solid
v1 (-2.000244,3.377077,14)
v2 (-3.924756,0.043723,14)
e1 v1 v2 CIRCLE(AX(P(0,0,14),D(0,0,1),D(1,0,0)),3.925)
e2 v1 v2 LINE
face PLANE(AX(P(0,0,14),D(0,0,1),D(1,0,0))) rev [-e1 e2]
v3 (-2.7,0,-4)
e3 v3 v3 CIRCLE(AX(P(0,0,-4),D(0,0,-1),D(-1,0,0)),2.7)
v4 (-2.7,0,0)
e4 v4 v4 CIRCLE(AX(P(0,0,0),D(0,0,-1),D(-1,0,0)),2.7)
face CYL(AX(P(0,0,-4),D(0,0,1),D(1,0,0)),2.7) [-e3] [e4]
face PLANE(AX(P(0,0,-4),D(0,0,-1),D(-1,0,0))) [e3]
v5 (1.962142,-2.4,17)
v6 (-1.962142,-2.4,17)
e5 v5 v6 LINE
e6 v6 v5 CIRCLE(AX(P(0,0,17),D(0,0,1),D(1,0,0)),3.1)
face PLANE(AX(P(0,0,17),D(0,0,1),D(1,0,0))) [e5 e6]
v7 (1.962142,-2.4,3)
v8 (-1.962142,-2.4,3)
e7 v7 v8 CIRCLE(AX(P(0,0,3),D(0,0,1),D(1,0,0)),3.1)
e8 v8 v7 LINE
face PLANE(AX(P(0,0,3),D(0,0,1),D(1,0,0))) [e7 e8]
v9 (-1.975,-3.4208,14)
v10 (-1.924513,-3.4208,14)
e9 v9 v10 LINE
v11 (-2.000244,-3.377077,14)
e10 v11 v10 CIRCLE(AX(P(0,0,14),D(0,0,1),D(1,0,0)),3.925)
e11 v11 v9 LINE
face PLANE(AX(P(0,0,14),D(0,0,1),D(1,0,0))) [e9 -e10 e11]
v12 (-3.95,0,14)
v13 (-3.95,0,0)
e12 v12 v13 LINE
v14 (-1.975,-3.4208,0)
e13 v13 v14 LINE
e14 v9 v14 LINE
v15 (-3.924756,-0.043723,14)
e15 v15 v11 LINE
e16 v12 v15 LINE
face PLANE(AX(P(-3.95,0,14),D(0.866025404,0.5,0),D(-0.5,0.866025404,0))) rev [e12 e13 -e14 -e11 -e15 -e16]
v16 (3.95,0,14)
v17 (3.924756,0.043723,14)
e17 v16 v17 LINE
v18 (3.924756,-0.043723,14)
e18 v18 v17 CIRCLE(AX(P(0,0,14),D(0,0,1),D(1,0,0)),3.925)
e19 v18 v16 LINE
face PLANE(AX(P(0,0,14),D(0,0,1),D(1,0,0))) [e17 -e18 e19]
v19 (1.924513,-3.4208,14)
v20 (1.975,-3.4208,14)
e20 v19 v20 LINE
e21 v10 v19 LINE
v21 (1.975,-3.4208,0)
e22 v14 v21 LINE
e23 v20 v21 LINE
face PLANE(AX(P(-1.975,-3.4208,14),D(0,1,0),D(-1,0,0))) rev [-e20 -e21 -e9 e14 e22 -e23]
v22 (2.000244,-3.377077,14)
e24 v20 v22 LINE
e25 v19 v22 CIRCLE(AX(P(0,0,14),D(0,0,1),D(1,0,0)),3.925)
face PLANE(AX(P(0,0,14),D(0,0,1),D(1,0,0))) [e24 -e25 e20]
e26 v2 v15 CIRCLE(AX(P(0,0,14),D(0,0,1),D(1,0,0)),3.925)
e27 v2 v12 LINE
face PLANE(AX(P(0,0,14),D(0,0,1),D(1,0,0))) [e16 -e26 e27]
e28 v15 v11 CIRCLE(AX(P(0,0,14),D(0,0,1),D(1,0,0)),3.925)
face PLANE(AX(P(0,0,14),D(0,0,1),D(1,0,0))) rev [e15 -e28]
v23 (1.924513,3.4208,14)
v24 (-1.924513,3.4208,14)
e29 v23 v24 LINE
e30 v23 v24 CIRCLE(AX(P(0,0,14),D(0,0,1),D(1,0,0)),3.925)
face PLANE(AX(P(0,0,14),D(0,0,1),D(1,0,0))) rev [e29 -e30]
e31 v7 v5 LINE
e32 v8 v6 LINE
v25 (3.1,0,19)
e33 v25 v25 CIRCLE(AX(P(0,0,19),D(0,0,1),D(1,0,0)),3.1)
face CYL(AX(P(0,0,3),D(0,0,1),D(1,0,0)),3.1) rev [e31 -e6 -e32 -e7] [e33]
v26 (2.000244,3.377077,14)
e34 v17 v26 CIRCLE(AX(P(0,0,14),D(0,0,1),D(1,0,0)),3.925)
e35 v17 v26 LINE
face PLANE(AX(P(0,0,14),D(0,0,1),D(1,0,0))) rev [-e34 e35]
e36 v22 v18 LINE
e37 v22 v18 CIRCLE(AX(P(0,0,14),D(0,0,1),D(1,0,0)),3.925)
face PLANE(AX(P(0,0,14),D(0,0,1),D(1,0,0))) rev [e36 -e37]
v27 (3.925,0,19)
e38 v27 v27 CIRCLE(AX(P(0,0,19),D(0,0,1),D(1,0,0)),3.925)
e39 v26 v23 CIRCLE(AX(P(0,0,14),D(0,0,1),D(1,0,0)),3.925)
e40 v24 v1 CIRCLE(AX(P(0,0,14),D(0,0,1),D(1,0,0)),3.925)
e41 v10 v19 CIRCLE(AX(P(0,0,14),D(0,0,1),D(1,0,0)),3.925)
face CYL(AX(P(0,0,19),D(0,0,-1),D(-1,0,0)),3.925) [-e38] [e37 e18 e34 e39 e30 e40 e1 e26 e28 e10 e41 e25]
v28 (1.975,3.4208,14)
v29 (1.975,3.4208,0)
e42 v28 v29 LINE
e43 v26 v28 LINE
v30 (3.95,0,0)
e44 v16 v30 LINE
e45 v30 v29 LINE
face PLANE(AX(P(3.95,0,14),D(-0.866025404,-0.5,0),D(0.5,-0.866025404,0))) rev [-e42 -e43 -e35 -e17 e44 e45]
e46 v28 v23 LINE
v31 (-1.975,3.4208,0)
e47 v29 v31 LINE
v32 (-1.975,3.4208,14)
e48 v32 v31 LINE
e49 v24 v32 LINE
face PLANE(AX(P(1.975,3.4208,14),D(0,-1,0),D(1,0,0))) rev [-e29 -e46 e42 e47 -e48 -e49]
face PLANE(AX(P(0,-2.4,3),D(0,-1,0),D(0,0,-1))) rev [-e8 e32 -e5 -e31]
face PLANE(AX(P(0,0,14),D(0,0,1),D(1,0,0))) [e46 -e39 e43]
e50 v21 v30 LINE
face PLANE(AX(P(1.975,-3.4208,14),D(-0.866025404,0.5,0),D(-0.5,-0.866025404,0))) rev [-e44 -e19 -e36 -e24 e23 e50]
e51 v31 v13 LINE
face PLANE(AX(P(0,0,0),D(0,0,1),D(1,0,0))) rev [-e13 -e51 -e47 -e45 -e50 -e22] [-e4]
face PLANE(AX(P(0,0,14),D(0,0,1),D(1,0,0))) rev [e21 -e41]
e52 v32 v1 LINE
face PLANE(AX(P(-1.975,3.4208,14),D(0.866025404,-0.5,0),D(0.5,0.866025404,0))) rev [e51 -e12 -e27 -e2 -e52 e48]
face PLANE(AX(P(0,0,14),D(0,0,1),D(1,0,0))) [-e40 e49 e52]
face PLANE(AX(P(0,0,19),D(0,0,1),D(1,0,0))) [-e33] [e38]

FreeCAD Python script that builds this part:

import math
import FreeCAD as App
import Part
import Sketcher
Q = App.Units.Quantity


def add_polygon(sketch, points):
    """Adds a closed chain of lines whose ends are joined by coincident constraints."""
    first, n = sketch.GeometryCount, len(points)
    for a, b in zip(points, points[1:] + points[:1]):
        sketch.addGeometry(Part.LineSegment(App.Vector(*a, 0), App.Vector(*b, 0)), False)
    for i in range(n):
        sketch.addConstraint(Sketcher.Constraint("Coincident", first + i, 2, first + (i + 1) % n, 1))

doc = App.newDocument("Part")
params = doc.addObject("Spreadsheet::Sheet", "Params")
for row, (alias, value) in enumerate([
    ("sketch1_width", "3.95 mm"),
    ("pad1_length", "14 mm"),
    ("sketch2_diameter", "7.85 mm"),
    ("pad2_length", "5 mm"),
    ("sketch3_diameter", "5.4 mm"),
    ("pad3_length", "4 mm"),
    ("sketch4_radius", "3.1 mm"),
    ("pocket1_length", "16 mm"),
    ("sketch5_diameter", "6.2 mm"),
    ("pocket2_length", "2 mm"),
], start=1):
    params.set(f"A{row}", alias)
    params.set(f"B{row}", "=" + value)
    params.setAlias(f"B{row}", alias)

body = doc.addObject("PartDesign::Body", "Body")

# Sketch on XY plane
sketch1 = body.newObject("Sketcher::SketchObject", "Sketch")
sketch1.AttachmentSupport = (doc.getObject("XY_Plane"), [""])
sketch1.MapMode = "FlatFace"
add_polygon(sketch1, [(4, 0), (2, 3.4), (-2, 3.4), (-4, 0), (-2, -3.4), (2, -3.4)])  # lines 0-5
sketch1.addConstraint(Sketcher.Constraint("Horizontal", 1))
sketch1.addConstraint(Sketcher.Constraint("Horizontal", 4))
sketch1.addConstraint(Sketcher.Constraint("Symmetric", 0, 2, 3, 2, -1, 1))
sketch1.addConstraint(Sketcher.Constraint("Symmetric", 2, 2, 5, 2, -1, 1))
sketch1.addConstraint(Sketcher.Constraint("PointOnObject", 2, 2, -1))
sketch1.addConstraint(Sketcher.Constraint("Parallel", 2, 5))
sketch1.addConstraint(Sketcher.Constraint("Vertical", 1, 2, 3, 2))
sketch1.addConstraint(Sketcher.Constraint("Angle", 0, Q("120 deg")))
sketch1.addConstraint(Sketcher.Constraint("DistanceX", 1, 2, 1, 1, 3.95))
sketch1.addConstraint(Sketcher.Constraint("DistanceX", 2, 2, 5, 2, 7.9))
sketch1.setExpression("Constraints[14]", "Params.sketch1_width")
pad1 = body.newObject("PartDesign::Pad", "Pad")
pad1.Profile = sketch1
pad1.setExpression("Length", "Params.pad1_length")

# Sketch on XY plane
sketch2 = body.newObject("Sketcher::SketchObject", "Sketch001")
sketch2.AttachmentSupport = (doc.getObject("XY_Plane"), [""])
sketch2.MapMode = "FlatFace"
sketch2.AttachmentOffset = App.Placement(App.Vector(0, 0, 14), App.Rotation())
sketch2.addGeometry(Part.Circle(App.Vector(0, 0, 0), App.Vector(0, 0, 1), 3.9), False)
sketch2.addConstraint(Sketcher.Constraint("Coincident", 0, 3, -1, 1))
sketch2.addConstraint(Sketcher.Constraint("Diameter", 0, 7.85))
sketch2.setExpression("Constraints[1]", "Params.sketch2_diameter")
pad2 = body.newObject("PartDesign::Pad", "Pad001")
pad2.Profile = sketch2
pad2.setExpression("Length", "Params.pad2_length")

# Sketch on XY plane
sketch3 = body.newObject("Sketcher::SketchObject", "Sketch002")
sketch3.AttachmentSupport = (doc.getObject("XY_Plane"), [""])
sketch3.MapMode = "FlatFace"
sketch3.addGeometry(Part.Circle(App.Vector(0, 0, 0), App.Vector(0, 0, 1), 2.7), False)
sketch3.addConstraint(Sketcher.Constraint("Coincident", 0, 3, -1, 1))
sketch3.addConstraint(Sketcher.Constraint("Diameter", 0, 5.4))
sketch3.setExpression("Constraints[1]", "Params.sketch3_diameter")
pad3 = body.newObject("PartDesign::Pad", "Pad002")
pad3.Profile = sketch3
pad3.setExpression("Length", "Params.pad3_length")
pad3.Reversed = True

# Sketch on XY plane
sketch4 = body.newObject("Sketcher::SketchObject", "Sketch003")
sketch4.AttachmentSupport = (doc.getObject("XY_Plane"), [""])
sketch4.MapMode = "FlatFace"
sketch4.AttachmentOffset = App.Placement(App.Vector(0, 0, 19), App.Rotation())
sketch4.addGeometry(Part.ArcOfCircle(Part.Circle(App.Vector(0, 0, 0), App.Vector(0, 0, 1), 3.1), math.radians(0), math.radians(231)), False)
sketch4.addGeometry(Part.LineSegment(App.Vector(-2, -2.4, 0), App.Vector(2, -2.4, 0)), False)
sketch4.addGeometry(Part.ArcOfCircle(Part.Circle(App.Vector(0, 0, 0), App.Vector(0, 0, 1), 3.1), math.radians(-51), math.radians(0)), False)
sketch4.addConstraint(Sketcher.Constraint("Coincident", 0, 2, 1, 1))
sketch4.addConstraint(Sketcher.Constraint("Coincident", 1, 2, 2, 1))
sketch4.addConstraint(Sketcher.Constraint("Tangent", 2, 2, 0, 1))
sketch4.addConstraint(Sketcher.Constraint("Horizontal", 1))
sketch4.addConstraint(Sketcher.Constraint("Coincident", 0, 3, -1, 1))
sketch4.addConstraint(Sketcher.Constraint("Equal", 0, 2))
sketch4.addConstraint(Sketcher.Constraint("PointOnObject", 2, 2, -1))
sketch4.addConstraint(Sketcher.Constraint("Radius", 0, 3.1))
sketch4.addConstraint(Sketcher.Constraint("DistanceY", 0, 2, -1, 1, 2.4))
sketch4.setExpression("Constraints[7]", "Params.sketch4_radius")
pocket1 = body.newObject("PartDesign::Pocket", "Pocket")
pocket1.Profile = sketch4
pocket1.setExpression("Length", "Params.pocket1_length")

# Sketch on XY plane
sketch5 = body.newObject("Sketcher::SketchObject", "Sketch004")
sketch5.AttachmentSupport = (doc.getObject("XY_Plane"), [""])
sketch5.MapMode = "FlatFace"
sketch5.AttachmentOffset = App.Placement(App.Vector(0, 0, 19), App.Rotation())
sketch5.addGeometry(Part.Circle(App.Vector(0, 0, 0), App.Vector(0, 0, 1), 3.1), False)
sketch5.addConstraint(Sketcher.Constraint("Coincident", 0, 3, -1, 1))
sketch5.addConstraint(Sketcher.Constraint("Diameter", 0, 6.2))
sketch5.setExpression("Constraints[1]", "Params.sketch5_diameter")
pocket2 = body.newObject("PartDesign::Pocket", "Pocket001")
pocket2.Profile = sketch5
pocket2.setExpression("Length", "Params.pocket2_length")

doc.recompute()
